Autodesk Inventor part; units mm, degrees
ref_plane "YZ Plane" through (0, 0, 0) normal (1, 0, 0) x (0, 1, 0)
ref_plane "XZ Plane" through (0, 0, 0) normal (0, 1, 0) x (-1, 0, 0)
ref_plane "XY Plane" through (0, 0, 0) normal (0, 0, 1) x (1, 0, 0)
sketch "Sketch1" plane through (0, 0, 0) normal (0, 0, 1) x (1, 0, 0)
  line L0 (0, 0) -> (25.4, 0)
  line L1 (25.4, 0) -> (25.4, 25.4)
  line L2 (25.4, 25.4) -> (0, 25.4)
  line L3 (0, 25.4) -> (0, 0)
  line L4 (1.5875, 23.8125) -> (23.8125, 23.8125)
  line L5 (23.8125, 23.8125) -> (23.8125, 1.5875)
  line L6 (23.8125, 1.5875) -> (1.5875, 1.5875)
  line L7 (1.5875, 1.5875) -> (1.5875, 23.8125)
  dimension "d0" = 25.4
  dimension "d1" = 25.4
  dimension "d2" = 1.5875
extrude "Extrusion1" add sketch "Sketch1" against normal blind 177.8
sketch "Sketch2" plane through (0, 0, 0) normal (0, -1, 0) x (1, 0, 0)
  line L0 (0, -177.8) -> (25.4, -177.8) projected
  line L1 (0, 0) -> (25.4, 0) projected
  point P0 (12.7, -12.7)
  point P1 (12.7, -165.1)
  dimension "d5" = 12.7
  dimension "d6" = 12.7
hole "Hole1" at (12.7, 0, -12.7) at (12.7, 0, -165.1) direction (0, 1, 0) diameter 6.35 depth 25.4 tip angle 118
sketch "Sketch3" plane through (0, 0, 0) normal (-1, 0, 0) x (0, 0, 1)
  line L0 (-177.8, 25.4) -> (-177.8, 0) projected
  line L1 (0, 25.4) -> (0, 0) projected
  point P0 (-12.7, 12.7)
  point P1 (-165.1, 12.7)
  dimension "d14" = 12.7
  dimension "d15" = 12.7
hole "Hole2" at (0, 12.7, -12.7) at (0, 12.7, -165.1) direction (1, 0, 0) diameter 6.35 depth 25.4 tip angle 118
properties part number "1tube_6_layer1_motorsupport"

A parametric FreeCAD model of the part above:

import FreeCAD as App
import Part
import Sketcher
from FreeCAD import Vector
Q = App.Units.Quantity

doc = App.newDocument("Part")
body = doc.addObject("PartDesign::Body", "Body")

sketch1 = doc.addObject("Sketcher::SketchObject", "Sketch")
body.addObject(sketch1)
sketch1.AttachmentSupport = (doc.XY_Plane, [""])
sketch1.MapMode = "FlatFace"
sketch1.addGeometry(Part.LineSegment(Vector(0, 25, 0), Vector(0, 0, 0)), False)
sketch1.addGeometry(Part.LineSegment(Vector(0, 0, 0), Vector(25, 0, 0)), False)
sketch1.addGeometry(Part.LineSegment(Vector(25, 0, 0), Vector(25, 25, 0)), False)
sketch1.addGeometry(Part.LineSegment(Vector(25, 25, 0), Vector(0, 25, 0)), False)
sketch1.addGeometry(Part.LineSegment(Vector(2, 2, 0), Vector(2, 24, 0)), False)
sketch1.addGeometry(Part.LineSegment(Vector(2, 24, 0), Vector(24, 24, 0)), False)
sketch1.addGeometry(Part.LineSegment(Vector(24, 24, 0), Vector(24, 2, 0)), False)
sketch1.addGeometry(Part.LineSegment(Vector(24, 2, 0), Vector(2, 2, 0)), False)
sketch1.addConstraint(Sketcher.Constraint("Coincident", 0, 2, 1, 1))
sketch1.addConstraint(Sketcher.Constraint("Coincident", 1, 2, 2, 1))
sketch1.addConstraint(Sketcher.Constraint("Coincident", 2, 2, 3, 1))
sketch1.addConstraint(Sketcher.Constraint("Coincident", 3, 2, 0, 1))
sketch1.addConstraint(Sketcher.Constraint("Coincident", 4, 2, 5, 1))
sketch1.addConstraint(Sketcher.Constraint("Coincident", 5, 2, 6, 1))
sketch1.addConstraint(Sketcher.Constraint("Coincident", 6, 2, 7, 1))
sketch1.addConstraint(Sketcher.Constraint("Coincident", 7, 2, 4, 1))
sketch1.addConstraint(Sketcher.Constraint("Vertical", 0))
sketch1.addConstraint(Sketcher.Constraint("Horizontal", 1))
sketch1.addConstraint(Sketcher.Constraint("Vertical", 2))
sketch1.addConstraint(Sketcher.Constraint("Horizontal", 3))
sketch1.addConstraint(Sketcher.Constraint("Vertical", 4))
sketch1.addConstraint(Sketcher.Constraint("Horizontal", 5))
sketch1.addConstraint(Sketcher.Constraint("Vertical", 6))
sketch1.addConstraint(Sketcher.Constraint("Horizontal", 7))
sketch1.addConstraint(Sketcher.Constraint("Coincident", 0, 2, -1, 1))
sketch1.addConstraint(Sketcher.Constraint("Equal", 3, 0))
sketch1.addConstraint(Sketcher.Constraint("Equal", 7, 4))
sketch1.addConstraint(Sketcher.Constraint("DistanceX", 1, 1, 1, 2, Q("1 in")))
sketch1.addConstraint(Sketcher.Constraint("DistanceX", -1, 1, 4, 2, Q("0.0625 in")))
sketch1.addConstraint(Sketcher.Constraint("DistanceY", -1, 1, 6, 2, Q("0.0625 in")))
sketch1.addConstraint(Sketcher.Constraint("DistanceY", 4, 2, 3, 2, Q("0.0625 in")))
pad1 = doc.addObject("PartDesign::Pad", "Pad")
body.addObject(pad1)
pad1.Profile = sketch1
pad1.Length = Q("7 in")
pad1.Reversed = True

sketch2 = doc.addObject("Sketcher::SketchObject", "Sketch001")
body.addObject(sketch2)
sketch2.AttachmentSupport = (doc.XZ_Plane, [""])
sketch2.MapMode = "FlatFace"
sketch2.addGeometry(Part.Circle(Vector(12.7, -12.7, 0), Vector(0, 0, 1), 3.2), False)
sketch2.addGeometry(Part.Circle(Vector(12.7, -165.1, 0), Vector(0, 0, 1), 3.2), False)
sketch2.addConstraint(Sketcher.Constraint("Equal", 0, 1))
sketch2.addConstraint(Sketcher.Constraint("Vertical", 0, 3, 1, 3))
sketch2.addConstraint(Sketcher.Constraint("Diameter", 0, Q("0.25 in")))
sketch2.addConstraint(Sketcher.Constraint("DistanceY", 1, 3, 0, 3, Q("6 in")))
sketch2.addConstraint(Sketcher.Constraint("DistanceX", -1, 1, 0, 3, Q("0.5 in")))
sketch2.addConstraint(Sketcher.Constraint("DistanceY", 0, 3, -1, 1, Q("0.5 in")))
doc.recompute()
hole = doc.addObject("PartDesign::Hole", "Hole")
body.addObject(hole)
hole.Profile = sketch2
hole.ThreadType = "None"
hole.Diameter = Q("0.25 in")
hole.DepthType = "Dimension"
hole.Depth = Q("1 in")
hole.DrillPoint = "Angled"
hole.DrillPointAngle = 118

sketch3 = doc.addObject("Sketcher::SketchObject", "Sketch002")
body.addObject(sketch3)
sketch3.AttachmentSupport = (doc.YZ_Plane, [""])
sketch3.MapMode = "FlatFace"
sketch3.addGeometry(Part.Circle(Vector(12.7, -12.7, 0), Vector(0, 0, 1), 3.2), False)
sketch3.addGeometry(Part.Circle(Vector(12.7, -165.1, 0), Vector(0, 0, 1), 3.2), False)
sketch3.addConstraint(Sketcher.Constraint("Equal", 0, 1))
sketch3.addConstraint(Sketcher.Constraint("Vertical", 0, 3, 1, 3))
sketch3.addConstraint(Sketcher.Constraint("Diameter", 0, Q("0.25 in")))
sketch3.addConstraint(Sketcher.Constraint("DistanceY", 1, 3, 0, 3, Q("6 in")))
sketch3.addConstraint(Sketcher.Constraint("DistanceX", -1, 1, 0, 3, Q("0.5 in")))
sketch3.addConstraint(Sketcher.Constraint("DistanceY", 0, 3, -1, 1, Q("0.5 in")))
doc.recompute()
hole2 = doc.addObject("PartDesign::Hole", "Hole001")
body.addObject(hole2)
hole2.Profile = sketch3
hole2.ThreadType = "None"
hole2.Diameter = Q("0.25 in")
hole2.DepthType = "Dimension"
hole2.Depth = Q("1 in")
hole2.DrillPoint = "Angled"
hole2.DrillPointAngle = 118
hole2.Reversed = True

doc.recompute()
